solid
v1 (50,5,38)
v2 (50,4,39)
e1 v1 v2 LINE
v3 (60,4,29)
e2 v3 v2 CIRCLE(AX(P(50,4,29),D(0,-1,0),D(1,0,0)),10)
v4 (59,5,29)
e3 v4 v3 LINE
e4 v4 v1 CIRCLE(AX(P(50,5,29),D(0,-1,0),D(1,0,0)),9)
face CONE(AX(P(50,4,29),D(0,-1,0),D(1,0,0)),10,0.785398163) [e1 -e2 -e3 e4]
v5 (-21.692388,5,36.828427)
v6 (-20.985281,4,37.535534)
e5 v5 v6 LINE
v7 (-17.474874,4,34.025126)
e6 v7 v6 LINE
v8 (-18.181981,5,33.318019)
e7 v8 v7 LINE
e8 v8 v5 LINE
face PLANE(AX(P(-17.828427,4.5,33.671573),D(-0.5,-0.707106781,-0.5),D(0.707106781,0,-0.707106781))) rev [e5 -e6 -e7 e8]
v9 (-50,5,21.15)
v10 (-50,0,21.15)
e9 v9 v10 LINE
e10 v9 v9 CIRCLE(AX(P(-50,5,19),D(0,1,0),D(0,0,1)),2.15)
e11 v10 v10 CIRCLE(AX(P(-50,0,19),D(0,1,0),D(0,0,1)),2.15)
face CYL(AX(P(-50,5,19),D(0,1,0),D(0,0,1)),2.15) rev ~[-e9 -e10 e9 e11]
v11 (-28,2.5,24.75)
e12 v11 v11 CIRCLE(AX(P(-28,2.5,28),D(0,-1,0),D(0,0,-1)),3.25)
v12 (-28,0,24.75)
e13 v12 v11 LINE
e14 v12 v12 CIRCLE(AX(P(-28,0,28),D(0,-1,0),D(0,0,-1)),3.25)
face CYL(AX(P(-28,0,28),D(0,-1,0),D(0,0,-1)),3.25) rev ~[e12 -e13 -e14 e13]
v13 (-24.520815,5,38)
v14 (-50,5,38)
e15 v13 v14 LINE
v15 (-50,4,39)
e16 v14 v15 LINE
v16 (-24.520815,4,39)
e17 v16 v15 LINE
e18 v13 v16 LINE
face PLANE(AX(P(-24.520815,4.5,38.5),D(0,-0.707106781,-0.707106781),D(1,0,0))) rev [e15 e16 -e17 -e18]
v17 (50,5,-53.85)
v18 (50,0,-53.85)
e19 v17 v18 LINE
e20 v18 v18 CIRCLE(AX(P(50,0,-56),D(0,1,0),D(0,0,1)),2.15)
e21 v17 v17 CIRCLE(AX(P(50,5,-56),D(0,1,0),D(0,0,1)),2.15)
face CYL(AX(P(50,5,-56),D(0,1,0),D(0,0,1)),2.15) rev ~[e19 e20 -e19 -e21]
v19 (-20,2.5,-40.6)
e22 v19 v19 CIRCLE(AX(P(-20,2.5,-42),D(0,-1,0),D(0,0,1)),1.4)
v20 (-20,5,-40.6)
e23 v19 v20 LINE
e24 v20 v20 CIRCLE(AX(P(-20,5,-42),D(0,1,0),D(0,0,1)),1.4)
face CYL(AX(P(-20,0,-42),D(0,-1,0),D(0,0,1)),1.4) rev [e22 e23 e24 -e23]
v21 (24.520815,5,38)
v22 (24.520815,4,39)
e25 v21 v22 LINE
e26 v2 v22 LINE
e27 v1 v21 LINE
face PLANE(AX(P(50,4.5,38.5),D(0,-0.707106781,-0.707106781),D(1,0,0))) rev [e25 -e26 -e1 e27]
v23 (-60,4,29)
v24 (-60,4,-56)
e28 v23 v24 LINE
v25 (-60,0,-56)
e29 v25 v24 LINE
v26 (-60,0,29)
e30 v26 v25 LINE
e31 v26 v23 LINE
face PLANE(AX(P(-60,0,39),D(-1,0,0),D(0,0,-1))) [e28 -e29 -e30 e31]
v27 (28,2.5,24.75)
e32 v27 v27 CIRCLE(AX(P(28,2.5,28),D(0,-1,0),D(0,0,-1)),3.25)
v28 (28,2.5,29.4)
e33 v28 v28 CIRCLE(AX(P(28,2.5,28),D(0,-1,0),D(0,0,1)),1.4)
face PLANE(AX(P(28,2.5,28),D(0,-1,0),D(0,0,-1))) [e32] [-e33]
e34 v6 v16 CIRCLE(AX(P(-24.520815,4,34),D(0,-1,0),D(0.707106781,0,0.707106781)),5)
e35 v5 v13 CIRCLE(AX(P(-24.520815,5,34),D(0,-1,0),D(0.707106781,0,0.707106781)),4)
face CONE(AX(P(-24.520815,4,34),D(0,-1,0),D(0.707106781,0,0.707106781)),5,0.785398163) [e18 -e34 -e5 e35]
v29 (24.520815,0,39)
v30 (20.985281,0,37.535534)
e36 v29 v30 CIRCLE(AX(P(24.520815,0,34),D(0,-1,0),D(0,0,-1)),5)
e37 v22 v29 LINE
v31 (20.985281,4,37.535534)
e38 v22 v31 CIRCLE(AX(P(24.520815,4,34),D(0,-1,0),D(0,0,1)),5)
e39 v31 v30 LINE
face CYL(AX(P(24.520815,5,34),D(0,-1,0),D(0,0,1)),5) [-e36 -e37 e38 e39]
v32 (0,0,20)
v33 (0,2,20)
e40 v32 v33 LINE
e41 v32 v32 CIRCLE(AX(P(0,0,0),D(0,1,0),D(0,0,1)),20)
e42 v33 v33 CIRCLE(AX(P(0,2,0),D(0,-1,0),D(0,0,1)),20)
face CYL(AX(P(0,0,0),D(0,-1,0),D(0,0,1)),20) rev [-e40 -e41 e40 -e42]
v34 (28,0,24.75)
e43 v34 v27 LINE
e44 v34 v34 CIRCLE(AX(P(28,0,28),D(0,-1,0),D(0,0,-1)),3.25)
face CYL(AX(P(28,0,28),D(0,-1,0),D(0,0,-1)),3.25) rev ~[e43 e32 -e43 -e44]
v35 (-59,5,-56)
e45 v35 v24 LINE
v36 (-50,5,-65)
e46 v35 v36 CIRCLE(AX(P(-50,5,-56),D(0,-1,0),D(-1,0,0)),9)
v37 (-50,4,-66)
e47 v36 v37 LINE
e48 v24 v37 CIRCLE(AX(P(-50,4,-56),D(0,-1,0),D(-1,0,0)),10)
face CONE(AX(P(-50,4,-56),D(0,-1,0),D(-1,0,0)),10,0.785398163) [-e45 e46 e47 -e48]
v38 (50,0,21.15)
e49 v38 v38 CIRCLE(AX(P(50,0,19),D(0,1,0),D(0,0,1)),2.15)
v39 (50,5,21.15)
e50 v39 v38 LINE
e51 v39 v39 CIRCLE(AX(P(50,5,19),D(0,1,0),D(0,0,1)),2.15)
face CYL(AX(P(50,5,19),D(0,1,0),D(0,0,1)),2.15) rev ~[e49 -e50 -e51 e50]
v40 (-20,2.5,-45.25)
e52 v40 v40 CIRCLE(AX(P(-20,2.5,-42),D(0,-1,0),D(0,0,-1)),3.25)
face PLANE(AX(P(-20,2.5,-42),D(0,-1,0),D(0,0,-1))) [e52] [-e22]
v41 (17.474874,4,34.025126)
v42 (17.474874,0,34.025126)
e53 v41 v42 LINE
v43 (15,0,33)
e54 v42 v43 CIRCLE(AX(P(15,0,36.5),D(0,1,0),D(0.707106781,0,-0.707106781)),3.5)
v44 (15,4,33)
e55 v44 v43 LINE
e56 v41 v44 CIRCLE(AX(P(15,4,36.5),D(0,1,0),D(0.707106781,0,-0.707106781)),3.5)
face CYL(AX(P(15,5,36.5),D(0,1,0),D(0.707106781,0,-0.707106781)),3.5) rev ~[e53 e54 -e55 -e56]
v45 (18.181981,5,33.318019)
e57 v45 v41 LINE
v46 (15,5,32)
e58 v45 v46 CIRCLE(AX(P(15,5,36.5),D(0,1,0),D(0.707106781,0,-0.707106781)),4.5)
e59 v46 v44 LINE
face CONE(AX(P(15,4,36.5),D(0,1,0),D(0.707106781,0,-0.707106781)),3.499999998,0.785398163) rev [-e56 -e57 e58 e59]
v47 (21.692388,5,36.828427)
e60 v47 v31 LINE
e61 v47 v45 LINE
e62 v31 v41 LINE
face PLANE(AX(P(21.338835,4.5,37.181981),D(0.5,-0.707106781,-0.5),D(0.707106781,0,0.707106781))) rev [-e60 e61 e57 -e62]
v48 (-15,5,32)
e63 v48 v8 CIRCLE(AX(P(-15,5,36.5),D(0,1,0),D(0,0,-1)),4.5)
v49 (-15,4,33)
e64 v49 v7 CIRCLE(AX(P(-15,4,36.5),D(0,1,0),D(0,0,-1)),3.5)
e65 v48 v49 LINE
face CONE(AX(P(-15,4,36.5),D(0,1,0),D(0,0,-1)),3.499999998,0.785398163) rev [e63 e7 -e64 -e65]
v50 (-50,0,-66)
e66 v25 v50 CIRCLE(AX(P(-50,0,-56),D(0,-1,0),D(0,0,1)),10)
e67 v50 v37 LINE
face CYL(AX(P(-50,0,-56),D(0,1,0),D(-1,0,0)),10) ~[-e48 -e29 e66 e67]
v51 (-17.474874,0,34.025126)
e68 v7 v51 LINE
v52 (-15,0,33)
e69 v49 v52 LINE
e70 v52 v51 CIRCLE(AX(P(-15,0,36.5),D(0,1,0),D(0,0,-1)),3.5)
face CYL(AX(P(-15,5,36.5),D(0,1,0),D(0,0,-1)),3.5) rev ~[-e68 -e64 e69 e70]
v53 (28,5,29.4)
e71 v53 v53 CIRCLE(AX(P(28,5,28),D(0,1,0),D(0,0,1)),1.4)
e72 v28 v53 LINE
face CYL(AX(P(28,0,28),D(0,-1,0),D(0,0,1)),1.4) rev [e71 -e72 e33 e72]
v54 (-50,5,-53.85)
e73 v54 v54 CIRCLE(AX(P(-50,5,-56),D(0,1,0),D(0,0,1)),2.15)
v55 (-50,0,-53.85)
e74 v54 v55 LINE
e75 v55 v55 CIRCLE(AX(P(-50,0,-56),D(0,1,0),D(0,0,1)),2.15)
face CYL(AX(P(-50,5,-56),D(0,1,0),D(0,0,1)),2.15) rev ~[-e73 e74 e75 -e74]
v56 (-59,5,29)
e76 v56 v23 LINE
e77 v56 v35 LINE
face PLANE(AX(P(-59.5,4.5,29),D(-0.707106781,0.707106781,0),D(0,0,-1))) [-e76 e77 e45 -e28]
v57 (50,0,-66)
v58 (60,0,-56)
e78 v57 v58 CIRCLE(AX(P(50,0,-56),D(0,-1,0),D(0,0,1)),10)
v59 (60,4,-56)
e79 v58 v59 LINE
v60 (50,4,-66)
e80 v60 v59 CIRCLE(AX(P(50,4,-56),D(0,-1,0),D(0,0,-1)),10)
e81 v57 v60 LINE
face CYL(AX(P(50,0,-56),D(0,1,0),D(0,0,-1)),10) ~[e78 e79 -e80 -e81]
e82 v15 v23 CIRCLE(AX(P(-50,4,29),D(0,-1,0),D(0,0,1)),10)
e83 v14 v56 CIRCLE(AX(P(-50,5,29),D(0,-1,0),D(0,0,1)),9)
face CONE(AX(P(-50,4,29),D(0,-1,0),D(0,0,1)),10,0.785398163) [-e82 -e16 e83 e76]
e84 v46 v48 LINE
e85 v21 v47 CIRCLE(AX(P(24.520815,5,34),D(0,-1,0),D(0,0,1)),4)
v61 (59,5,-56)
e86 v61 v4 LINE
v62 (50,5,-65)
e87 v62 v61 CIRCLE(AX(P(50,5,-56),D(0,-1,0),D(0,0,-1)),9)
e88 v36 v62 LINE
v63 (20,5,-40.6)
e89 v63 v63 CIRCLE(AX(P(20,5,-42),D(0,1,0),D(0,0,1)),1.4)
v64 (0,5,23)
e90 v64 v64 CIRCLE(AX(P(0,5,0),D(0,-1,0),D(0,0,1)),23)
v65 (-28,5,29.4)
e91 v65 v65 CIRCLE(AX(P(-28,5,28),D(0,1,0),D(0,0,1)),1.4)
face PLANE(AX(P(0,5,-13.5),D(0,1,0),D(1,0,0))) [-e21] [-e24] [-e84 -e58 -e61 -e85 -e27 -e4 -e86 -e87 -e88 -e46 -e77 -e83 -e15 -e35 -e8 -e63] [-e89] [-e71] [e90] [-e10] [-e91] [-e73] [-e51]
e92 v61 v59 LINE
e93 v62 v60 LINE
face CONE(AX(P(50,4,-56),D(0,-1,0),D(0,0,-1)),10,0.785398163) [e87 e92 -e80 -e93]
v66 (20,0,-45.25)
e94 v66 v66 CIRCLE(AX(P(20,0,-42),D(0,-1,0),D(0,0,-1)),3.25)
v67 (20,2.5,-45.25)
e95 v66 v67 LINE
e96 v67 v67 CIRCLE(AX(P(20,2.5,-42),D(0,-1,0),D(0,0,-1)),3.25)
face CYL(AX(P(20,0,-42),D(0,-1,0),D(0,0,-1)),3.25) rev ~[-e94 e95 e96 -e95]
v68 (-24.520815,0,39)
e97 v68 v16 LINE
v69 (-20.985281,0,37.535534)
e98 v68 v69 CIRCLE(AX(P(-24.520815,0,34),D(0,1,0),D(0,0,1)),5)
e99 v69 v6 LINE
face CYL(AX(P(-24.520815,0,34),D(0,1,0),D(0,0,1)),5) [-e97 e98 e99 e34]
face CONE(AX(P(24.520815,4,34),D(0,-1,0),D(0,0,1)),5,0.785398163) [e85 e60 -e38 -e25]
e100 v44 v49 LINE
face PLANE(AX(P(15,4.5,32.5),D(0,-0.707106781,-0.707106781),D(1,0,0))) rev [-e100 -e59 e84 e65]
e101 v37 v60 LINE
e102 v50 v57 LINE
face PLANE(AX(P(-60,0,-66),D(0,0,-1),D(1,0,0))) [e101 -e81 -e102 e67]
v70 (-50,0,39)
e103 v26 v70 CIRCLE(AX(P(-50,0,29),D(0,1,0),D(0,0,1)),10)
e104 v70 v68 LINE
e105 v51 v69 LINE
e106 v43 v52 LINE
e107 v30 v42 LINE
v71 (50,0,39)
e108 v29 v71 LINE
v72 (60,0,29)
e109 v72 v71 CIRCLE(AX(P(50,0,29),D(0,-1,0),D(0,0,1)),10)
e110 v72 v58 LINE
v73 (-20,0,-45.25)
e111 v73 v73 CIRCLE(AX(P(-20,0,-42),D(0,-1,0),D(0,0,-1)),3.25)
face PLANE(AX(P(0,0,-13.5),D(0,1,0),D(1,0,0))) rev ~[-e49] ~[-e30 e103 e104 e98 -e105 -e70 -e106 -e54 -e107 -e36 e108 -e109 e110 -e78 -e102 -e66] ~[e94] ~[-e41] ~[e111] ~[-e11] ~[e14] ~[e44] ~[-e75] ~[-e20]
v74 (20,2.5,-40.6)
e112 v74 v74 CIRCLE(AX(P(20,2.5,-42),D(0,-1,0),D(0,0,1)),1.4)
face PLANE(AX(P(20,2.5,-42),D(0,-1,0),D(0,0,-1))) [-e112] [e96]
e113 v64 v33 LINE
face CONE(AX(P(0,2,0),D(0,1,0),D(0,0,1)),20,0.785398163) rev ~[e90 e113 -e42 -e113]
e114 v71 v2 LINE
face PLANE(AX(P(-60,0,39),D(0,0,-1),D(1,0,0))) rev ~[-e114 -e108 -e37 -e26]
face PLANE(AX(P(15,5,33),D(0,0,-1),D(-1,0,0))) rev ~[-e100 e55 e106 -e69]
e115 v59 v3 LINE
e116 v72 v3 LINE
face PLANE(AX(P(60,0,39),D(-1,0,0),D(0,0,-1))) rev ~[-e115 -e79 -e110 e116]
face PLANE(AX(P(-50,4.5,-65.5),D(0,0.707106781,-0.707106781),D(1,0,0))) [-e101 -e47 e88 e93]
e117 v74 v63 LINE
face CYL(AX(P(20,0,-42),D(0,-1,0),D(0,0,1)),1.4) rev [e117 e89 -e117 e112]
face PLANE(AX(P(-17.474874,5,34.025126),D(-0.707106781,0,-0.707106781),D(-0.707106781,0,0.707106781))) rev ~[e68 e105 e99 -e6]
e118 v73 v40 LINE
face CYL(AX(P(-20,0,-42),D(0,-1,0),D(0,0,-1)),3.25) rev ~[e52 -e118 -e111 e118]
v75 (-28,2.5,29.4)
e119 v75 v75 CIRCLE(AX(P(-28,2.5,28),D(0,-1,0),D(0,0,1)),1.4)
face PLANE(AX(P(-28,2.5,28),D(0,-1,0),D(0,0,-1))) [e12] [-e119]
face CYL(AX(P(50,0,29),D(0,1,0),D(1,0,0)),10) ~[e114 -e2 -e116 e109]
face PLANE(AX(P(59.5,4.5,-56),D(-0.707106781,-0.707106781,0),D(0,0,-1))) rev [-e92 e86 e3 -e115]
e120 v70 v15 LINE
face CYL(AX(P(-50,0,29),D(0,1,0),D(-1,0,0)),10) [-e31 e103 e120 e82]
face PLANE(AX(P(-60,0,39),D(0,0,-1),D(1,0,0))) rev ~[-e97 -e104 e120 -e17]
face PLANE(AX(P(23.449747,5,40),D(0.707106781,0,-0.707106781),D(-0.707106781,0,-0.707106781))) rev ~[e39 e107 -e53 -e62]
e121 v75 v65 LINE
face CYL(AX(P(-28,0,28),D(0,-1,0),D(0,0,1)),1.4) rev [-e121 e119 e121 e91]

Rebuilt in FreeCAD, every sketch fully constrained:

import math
import FreeCAD as App
import Part
import Sketcher


def edges_at(feature, points):
    """Names of the edges that pass closest to the given points."""
    edges = feature.Shape.Edges
    near = lambda p: min(range(len(edges)), key=lambda i: edges[i].distToShape(Part.Vertex(*p))[0])
    return sorted({f"Edge{near(p) + 1}" for p in points})


def add_polygon(sketch, points):
    """Adds a closed chain of lines whose ends are joined by coincident constraints."""
    first, n = sketch.GeometryCount, len(points)
    for a, b in zip(points, points[1:] + points[:1]):
        sketch.addGeometry(Part.LineSegment(App.Vector(*a, 0), App.Vector(*b, 0)), False)
    for i in range(n):
        sketch.addConstraint(Sketcher.Constraint("Coincident", first + i, 2, first + (i + 1) % n, 1))

doc = App.newDocument("Part")
body = doc.addObject("PartDesign::Body", "Body")

sketch1 = body.newObject("Sketcher::SketchObject", "Sketch")
sketch1.AttachmentSupport = (doc.getObject("XZ_Plane"), [""])
sketch1.MapMode = "FlatFace"
add_polygon(sketch1, [(-60, -66), (-60, 39), (60, 39), (60, -66)])
sketch1.addGeometry(Part.Circle(App.Vector(-28, 28, 0), App.Vector(0, 0, 1), 1.4), False)
sketch1.addGeometry(Part.Circle(App.Vector(28, 28, 0), App.Vector(0, 0, 1), 1.4), False)
sketch1.addGeometry(Part.Circle(App.Vector(-20, -42, 0), App.Vector(0, 0, 1), 1.4), False)
sketch1.addGeometry(Part.Circle(App.Vector(20, -42, 0), App.Vector(0, 0, 1), 1.4), False)
sketch1.addConstraint(Sketcher.Constraint("Vertical", 0))
sketch1.addConstraint(Sketcher.Constraint("Horizontal", 1))
sketch1.addConstraint(Sketcher.Constraint("Vertical", 2))
sketch1.addConstraint(Sketcher.Constraint("Horizontal", 3))
sketch1.addConstraint(Sketcher.Constraint("Equal", 4, 5))
sketch1.addConstraint(Sketcher.Constraint("Equal", 5, 6))
sketch1.addConstraint(Sketcher.Constraint("Equal", 6, 7))
sketch1.addConstraint(Sketcher.Constraint("Symmetric", 4, 3, 5, 3, -2))
sketch1.addConstraint(Sketcher.Constraint("Symmetric", 6, 3, 7, 3, -2))
sketch1.addConstraint(Sketcher.Constraint("Diameter", 4, 2.8))
sketch1.addConstraint(Sketcher.Constraint("DistanceX", 1, 1, 1, 2, 120.0))
sketch1.addConstraint(Sketcher.Constraint("DistanceY", 0, 1, 0, 2, 105.0))
sketch1.addConstraint(Sketcher.Constraint("DistanceX", 4, 3, -1, 1, 28.0))
sketch1.addConstraint(Sketcher.Constraint("DistanceY", -1, 1, 4, 3, 28.0))
sketch1.addConstraint(Sketcher.Constraint("DistanceX", 6, 3, -1, 1, 20.0))
sketch1.addConstraint(Sketcher.Constraint("DistanceY", 6, 3, -1, 1, 42.0))
sketch1.addConstraint(Sketcher.Constraint("DistanceX", 0, 2, -1, 1, 60.0))
sketch1.addConstraint(Sketcher.Constraint("DistanceY", -1, 1, 0, 2, 39.0))
pad1 = body.newObject("PartDesign::Pad", "Pad")
pad1.Profile = sketch1
pad1.Length = 5
pad1.Reversed = True

sketch2 = body.newObject("Sketcher::SketchObject", "Sketch001")
sketch2.AttachmentSupport = (doc.getObject("XZ_Plane"), [""])
sketch2.MapMode = "FlatFace"
sketch2.AttachmentOffset = App.Placement(App.Vector(0, 0, -5), App.Rotation())
sketch2.addGeometry(Part.LineSegment(App.Vector(-17.5, 34, 0), App.Vector(-23.4, 40, 0)), False)
sketch2.addGeometry(Part.LineSegment(App.Vector(-23.4, 40, 0), App.Vector(23.4, 40, 0)), False)
sketch2.addGeometry(Part.LineSegment(App.Vector(23.4, 40, 0), App.Vector(17.5, 34, 0)), False)
sketch2.addGeometry(Part.ArcOfCircle(Part.Circle(App.Vector(15, 36.5, 0), App.Vector(0, 0, 1), 3.5), math.radians(-90), math.radians(-45)), False)
sketch2.addGeometry(Part.LineSegment(App.Vector(15, 33, 0), App.Vector(-15, 33, 0)), False)
sketch2.addGeometry(Part.ArcOfCircle(Part.Circle(App.Vector(-15, 36.5, 0), App.Vector(0, 0, 1), 3.5), math.radians(-135), math.radians(-90)), False)
sketch2.addConstraint(Sketcher.Constraint("Coincident", 0, 2, 1, 1))
sketch2.addConstraint(Sketcher.Constraint("Coincident", 1, 2, 2, 1))
sketch2.addConstraint(Sketcher.Constraint("Tangent", 2, 2, 3, 2))
sketch2.addConstraint(Sketcher.Constraint("Tangent", 3, 1, 4, 1))
sketch2.addConstraint(Sketcher.Constraint("Tangent", 4, 2, 5, 2))
sketch2.addConstraint(Sketcher.Constraint("Tangent", 5, 1, 0, 1))
sketch2.addConstraint(Sketcher.Constraint("Horizontal", 1))
sketch2.addConstraint(Sketcher.Constraint("Horizontal", 4))
sketch2.addConstraint(Sketcher.Constraint("Equal", 3, 5))
sketch2.addConstraint(Sketcher.Constraint("Symmetric", 2, 2, 5, 1, -2))
sketch2.addConstraint(Sketcher.Constraint("Perpendicular", 0, 2))
sketch2.addConstraint(Sketcher.Constraint("Radius", 3, 3.5))
sketch2.addConstraint(Sketcher.Constraint("DistanceX", 4, 2, 4, 1, 30.0))
sketch2.addConstraint(Sketcher.Constraint("DistanceY", -1, 1, 0, 2, 40.0))
sketch2.addConstraint(Sketcher.Constraint("DistanceY", -1, 1, 3, 1, 33.0))
pocket1 = body.newObject("PartDesign::Pocket", "Pocket")
pocket1.Profile = sketch2
pocket1.Type = "ThroughAll"
pocket1.Reversed = True
doc.recompute()

fillet = body.newObject("PartDesign::Fillet", "Fillet")
fillet.Base = (pocket1, edges_at(pocket1, [
    (-60, 2.5, -66),
    (60, 2.5, -66),
    (60, 2.5, 39),
    (-60, 2.5, 39),
]))
fillet.Radius = 10

sketch3 = body.newObject("Sketcher::SketchObject", "Sketch002")
sketch3.AttachmentSupport = (doc.getObject("XZ_Plane"), [""])
sketch3.MapMode = "FlatFace"
sketch3.addGeometry(Part.Circle(App.Vector(0, 0, 0), App.Vector(0, 0, 1), 20), False)
sketch3.addConstraint(Sketcher.Constraint("Coincident", 0, 3, -1, 1))
sketch3.addConstraint(Sketcher.Constraint("Diameter", 0, 40.0))
pocket2 = body.newObject("PartDesign::Pocket", "Pocket001")
pocket2.Profile = sketch3
pocket2.Type = "ThroughAll"
doc.recompute()

chamfer = body.newObject("PartDesign::Chamfer", "Chamfer")
chamfer.Base = (pocket2, edges_at(pocket2, [(0, 5, -20)]))
chamfer.Size = 3
doc.recompute()

fillet2 = body.newObject("PartDesign::Fillet", "Fillet001")
fillet2.Base = (chamfer, edges_at(chamfer, [(-22.45, 2.5, 39), (22.45, 2.5, 39)]))
fillet2.Radius = 5
doc.recompute()

chamfer2 = body.newObject("PartDesign::Chamfer", "Chamfer001")
chamfer2.Base = (fillet2, edges_at(fillet2, [
    (16.339, 5, 33.266),
    (0, 5, 33),
    (-16.339, 5, 33.266),
    (-19.23, 5, 35.78),
    (-60, 5, -13.5),
    (0, 5, -66),
    (60, 5, -13.5),
    (-37.26, 5, 39),
    (-57.071, 5, 36.071),
    (57.071, 5, 36.071),
    (57.071, 5, -63.071),
    (-57.071, 5, -63.071),
    (19.23, 5, 35.78),
    (37.26, 5, 39),
    (22.607, 5, 38.619),
    (-22.607, 5, 38.619),
]))
chamfer2.Size = 1

sketch4 = body.newObject("Sketcher::SketchObject", "Sketch003")
sketch4.AttachmentSupport = (doc.getObject("XZ_Plane"), [""])
sketch4.MapMode = "FlatFace"
sketch4.AttachmentOffset = App.Placement(App.Vector(0, 0, -5), App.Rotation())
sketch4.addGeometry(Part.Circle(App.Vector(-50, -56, 0), App.Vector(0, 0, 1), 2.1), False)
sketch4.addGeometry(Part.Circle(App.Vector(50, -56, 0), App.Vector(0, 0, 1), 2.1), False)
sketch4.addGeometry(Part.Circle(App.Vector(-50, 19, 0), App.Vector(0, 0, 1), 2.1), False)
sketch4.addGeometry(Part.Circle(App.Vector(50, 19, 0), App.Vector(0, 0, 1), 2.1), False)
sketch4.addConstraint(Sketcher.Constraint("Equal", 0, 1))
sketch4.addConstraint(Sketcher.Constraint("Equal", 1, 2))
sketch4.addConstraint(Sketcher.Constraint("Equal", 2, 3))
sketch4.addConstraint(Sketcher.Constraint("Symmetric", 0, 3, 1, 3, -2))
sketch4.addConstraint(Sketcher.Constraint("Symmetric", 2, 3, 3, 3, -2))
sketch4.addConstraint(Sketcher.Constraint("Vertical", 0, 3, 2, 3))
sketch4.addConstraint(Sketcher.Constraint("Diameter", 0, 4.3))
sketch4.addConstraint(Sketcher.Constraint("DistanceX", 0, 3, -1, 1, 50.0))
sketch4.addConstraint(Sketcher.Constraint("DistanceY", 0, 3, -1, 1, 56.0))
sketch4.addConstraint(Sketcher.Constraint("DistanceY", -1, 1, 2, 3, 19.0))
pocket3 = body.newObject("PartDesign::Pocket", "Pocket002")
pocket3.Profile = sketch4
pocket3.Type = "ThroughAll"
pocket3.Reversed = True

sketch5 = body.newObject("Sketcher::SketchObject", "Sketch004")
sketch5.AttachmentSupport = (doc.getObject("XZ_Plane"), [""])
sketch5.MapMode = "FlatFace"
sketch5.addGeometry(Part.Circle(App.Vector(-28, 28, 0), App.Vector(0, 0, 1), 3.2), False)
sketch5.addGeometry(Part.Circle(App.Vector(28, 28, 0), App.Vector(0, 0, 1), 3.2), False)
sketch5.addGeometry(Part.Circle(App.Vector(-20, -42, 0), App.Vector(0, 0, 1), 3.2), False)
sketch5.addGeometry(Part.Circle(App.Vector(20, -42, 0), App.Vector(0, 0, 1), 3.2), False)
sketch5.addConstraint(Sketcher.Constraint("Equal", 0, 1))
sketch5.addConstraint(Sketcher.Constraint("Equal", 1, 2))
sketch5.addConstraint(Sketcher.Constraint("Equal", 2, 3))
sketch5.addConstraint(Sketcher.Constraint("Symmetric", 0, 3, 1, 3, -2))
sketch5.addConstraint(Sketcher.Constraint("Symmetric", 2, 3, 3, 3, -2))
sketch5.addConstraint(Sketcher.Constraint("Diameter", 0, 6.5))
sketch5.addConstraint(Sketcher.Constraint("DistanceX", 0, 3, -1, 1, 28.0))
sketch5.addConstraint(Sketcher.Constraint("DistanceY", -1, 1, 0, 3, 28.0))
sketch5.addConstraint(Sketcher.Constraint("DistanceX", 2, 3, -1, 1, 20.0))
sketch5.addConstraint(Sketcher.Constraint("DistanceY", 2, 3, -1, 1, 42.0))
pocket4 = body.newObject("PartDesign::Pocket", "Pocket003")
pocket4.Profile = sketch5
pocket4.Length = 2.5

doc.recompute()
